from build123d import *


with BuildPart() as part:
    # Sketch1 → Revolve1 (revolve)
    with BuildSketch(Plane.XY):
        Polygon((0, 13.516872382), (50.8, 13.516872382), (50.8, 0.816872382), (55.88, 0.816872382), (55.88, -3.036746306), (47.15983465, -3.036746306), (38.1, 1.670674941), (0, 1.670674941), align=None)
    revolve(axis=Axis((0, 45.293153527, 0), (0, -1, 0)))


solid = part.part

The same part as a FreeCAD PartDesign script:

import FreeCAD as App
import Part
import Sketcher
Q = App.Units.Quantity


def add_polygon(sketch, points):
    """Adds a closed chain of lines whose ends are joined by coincident constraints."""
    first, n = sketch.GeometryCount, len(points)
    for a, b in zip(points, points[1:] + points[:1]):
        sketch.addGeometry(Part.LineSegment(App.Vector(*a, 0), App.Vector(*b, 0)), False)
    for i in range(n):
        sketch.addConstraint(Sketcher.Constraint("Coincident", first + i, 2, first + (i + 1) % n, 1))

doc = App.newDocument("Part")
body = doc.addObject("PartDesign::Body", "Body")

sketch1 = body.newObject("Sketcher::SketchObject", "Sketch")
sketch1.AttachmentSupport = (doc.getObject("XY_Plane"), [""])
sketch1.MapMode = "FlatFace"
add_polygon(sketch1, [(50.8, 13.516872), (0, 13.516872), (0, 1.670675), (38.1, 1.670675), (47.159835, -3.036746), (55.88, -3.036746), (55.88, 0.816872), (50.8, 0.816872)])
sketch1.addConstraint([
    Sketcher.Constraint("Horizontal", 0),
    Sketcher.Constraint("Vertical", 1),
    Sketcher.Constraint("Horizontal", 2),
    Sketcher.Constraint("Horizontal", 4),
    Sketcher.Constraint("Vertical", 5),
    Sketcher.Constraint("Horizontal", 6),
    Sketcher.Constraint("Vertical", 7),
    Sketcher.Constraint("PointOnObject", 0, 2, -2),
    Sketcher.Constraint("DistanceX", 0, 2, 0, 1, Q("2 in")),
    Sketcher.Constraint("DistanceX", 2, 1, 2, 2, Q("1.5 in")),
    Sketcher.Constraint("DistanceX", 6, 2, 6, 1, Q("0.2 in")),
    Sketcher.Constraint("DistanceY", 7, 1, 7, 2, Q("0.5 in")),
    Sketcher.Constraint("DistanceY", 5, 1, 5, 2, Q("3.853619 mm")),
    Sketcher.Constraint("Distance", 3, Q("10.20982 mm")),
    Sketcher.Constraint("DistanceX", 4, 1, 4, 2, Q("8.720165 mm")),
    Sketcher.Constraint("DistanceY", -1, 1, 0, 2, Q("13.516872 mm")),
])
revolution = body.newObject("PartDesign::Revolution", "Revolution")
revolution.Profile = sketch1
revolution.ReferenceAxis = (sketch1, ["V_Axis"])
revolution.Angle = 360

doc.recompute()
